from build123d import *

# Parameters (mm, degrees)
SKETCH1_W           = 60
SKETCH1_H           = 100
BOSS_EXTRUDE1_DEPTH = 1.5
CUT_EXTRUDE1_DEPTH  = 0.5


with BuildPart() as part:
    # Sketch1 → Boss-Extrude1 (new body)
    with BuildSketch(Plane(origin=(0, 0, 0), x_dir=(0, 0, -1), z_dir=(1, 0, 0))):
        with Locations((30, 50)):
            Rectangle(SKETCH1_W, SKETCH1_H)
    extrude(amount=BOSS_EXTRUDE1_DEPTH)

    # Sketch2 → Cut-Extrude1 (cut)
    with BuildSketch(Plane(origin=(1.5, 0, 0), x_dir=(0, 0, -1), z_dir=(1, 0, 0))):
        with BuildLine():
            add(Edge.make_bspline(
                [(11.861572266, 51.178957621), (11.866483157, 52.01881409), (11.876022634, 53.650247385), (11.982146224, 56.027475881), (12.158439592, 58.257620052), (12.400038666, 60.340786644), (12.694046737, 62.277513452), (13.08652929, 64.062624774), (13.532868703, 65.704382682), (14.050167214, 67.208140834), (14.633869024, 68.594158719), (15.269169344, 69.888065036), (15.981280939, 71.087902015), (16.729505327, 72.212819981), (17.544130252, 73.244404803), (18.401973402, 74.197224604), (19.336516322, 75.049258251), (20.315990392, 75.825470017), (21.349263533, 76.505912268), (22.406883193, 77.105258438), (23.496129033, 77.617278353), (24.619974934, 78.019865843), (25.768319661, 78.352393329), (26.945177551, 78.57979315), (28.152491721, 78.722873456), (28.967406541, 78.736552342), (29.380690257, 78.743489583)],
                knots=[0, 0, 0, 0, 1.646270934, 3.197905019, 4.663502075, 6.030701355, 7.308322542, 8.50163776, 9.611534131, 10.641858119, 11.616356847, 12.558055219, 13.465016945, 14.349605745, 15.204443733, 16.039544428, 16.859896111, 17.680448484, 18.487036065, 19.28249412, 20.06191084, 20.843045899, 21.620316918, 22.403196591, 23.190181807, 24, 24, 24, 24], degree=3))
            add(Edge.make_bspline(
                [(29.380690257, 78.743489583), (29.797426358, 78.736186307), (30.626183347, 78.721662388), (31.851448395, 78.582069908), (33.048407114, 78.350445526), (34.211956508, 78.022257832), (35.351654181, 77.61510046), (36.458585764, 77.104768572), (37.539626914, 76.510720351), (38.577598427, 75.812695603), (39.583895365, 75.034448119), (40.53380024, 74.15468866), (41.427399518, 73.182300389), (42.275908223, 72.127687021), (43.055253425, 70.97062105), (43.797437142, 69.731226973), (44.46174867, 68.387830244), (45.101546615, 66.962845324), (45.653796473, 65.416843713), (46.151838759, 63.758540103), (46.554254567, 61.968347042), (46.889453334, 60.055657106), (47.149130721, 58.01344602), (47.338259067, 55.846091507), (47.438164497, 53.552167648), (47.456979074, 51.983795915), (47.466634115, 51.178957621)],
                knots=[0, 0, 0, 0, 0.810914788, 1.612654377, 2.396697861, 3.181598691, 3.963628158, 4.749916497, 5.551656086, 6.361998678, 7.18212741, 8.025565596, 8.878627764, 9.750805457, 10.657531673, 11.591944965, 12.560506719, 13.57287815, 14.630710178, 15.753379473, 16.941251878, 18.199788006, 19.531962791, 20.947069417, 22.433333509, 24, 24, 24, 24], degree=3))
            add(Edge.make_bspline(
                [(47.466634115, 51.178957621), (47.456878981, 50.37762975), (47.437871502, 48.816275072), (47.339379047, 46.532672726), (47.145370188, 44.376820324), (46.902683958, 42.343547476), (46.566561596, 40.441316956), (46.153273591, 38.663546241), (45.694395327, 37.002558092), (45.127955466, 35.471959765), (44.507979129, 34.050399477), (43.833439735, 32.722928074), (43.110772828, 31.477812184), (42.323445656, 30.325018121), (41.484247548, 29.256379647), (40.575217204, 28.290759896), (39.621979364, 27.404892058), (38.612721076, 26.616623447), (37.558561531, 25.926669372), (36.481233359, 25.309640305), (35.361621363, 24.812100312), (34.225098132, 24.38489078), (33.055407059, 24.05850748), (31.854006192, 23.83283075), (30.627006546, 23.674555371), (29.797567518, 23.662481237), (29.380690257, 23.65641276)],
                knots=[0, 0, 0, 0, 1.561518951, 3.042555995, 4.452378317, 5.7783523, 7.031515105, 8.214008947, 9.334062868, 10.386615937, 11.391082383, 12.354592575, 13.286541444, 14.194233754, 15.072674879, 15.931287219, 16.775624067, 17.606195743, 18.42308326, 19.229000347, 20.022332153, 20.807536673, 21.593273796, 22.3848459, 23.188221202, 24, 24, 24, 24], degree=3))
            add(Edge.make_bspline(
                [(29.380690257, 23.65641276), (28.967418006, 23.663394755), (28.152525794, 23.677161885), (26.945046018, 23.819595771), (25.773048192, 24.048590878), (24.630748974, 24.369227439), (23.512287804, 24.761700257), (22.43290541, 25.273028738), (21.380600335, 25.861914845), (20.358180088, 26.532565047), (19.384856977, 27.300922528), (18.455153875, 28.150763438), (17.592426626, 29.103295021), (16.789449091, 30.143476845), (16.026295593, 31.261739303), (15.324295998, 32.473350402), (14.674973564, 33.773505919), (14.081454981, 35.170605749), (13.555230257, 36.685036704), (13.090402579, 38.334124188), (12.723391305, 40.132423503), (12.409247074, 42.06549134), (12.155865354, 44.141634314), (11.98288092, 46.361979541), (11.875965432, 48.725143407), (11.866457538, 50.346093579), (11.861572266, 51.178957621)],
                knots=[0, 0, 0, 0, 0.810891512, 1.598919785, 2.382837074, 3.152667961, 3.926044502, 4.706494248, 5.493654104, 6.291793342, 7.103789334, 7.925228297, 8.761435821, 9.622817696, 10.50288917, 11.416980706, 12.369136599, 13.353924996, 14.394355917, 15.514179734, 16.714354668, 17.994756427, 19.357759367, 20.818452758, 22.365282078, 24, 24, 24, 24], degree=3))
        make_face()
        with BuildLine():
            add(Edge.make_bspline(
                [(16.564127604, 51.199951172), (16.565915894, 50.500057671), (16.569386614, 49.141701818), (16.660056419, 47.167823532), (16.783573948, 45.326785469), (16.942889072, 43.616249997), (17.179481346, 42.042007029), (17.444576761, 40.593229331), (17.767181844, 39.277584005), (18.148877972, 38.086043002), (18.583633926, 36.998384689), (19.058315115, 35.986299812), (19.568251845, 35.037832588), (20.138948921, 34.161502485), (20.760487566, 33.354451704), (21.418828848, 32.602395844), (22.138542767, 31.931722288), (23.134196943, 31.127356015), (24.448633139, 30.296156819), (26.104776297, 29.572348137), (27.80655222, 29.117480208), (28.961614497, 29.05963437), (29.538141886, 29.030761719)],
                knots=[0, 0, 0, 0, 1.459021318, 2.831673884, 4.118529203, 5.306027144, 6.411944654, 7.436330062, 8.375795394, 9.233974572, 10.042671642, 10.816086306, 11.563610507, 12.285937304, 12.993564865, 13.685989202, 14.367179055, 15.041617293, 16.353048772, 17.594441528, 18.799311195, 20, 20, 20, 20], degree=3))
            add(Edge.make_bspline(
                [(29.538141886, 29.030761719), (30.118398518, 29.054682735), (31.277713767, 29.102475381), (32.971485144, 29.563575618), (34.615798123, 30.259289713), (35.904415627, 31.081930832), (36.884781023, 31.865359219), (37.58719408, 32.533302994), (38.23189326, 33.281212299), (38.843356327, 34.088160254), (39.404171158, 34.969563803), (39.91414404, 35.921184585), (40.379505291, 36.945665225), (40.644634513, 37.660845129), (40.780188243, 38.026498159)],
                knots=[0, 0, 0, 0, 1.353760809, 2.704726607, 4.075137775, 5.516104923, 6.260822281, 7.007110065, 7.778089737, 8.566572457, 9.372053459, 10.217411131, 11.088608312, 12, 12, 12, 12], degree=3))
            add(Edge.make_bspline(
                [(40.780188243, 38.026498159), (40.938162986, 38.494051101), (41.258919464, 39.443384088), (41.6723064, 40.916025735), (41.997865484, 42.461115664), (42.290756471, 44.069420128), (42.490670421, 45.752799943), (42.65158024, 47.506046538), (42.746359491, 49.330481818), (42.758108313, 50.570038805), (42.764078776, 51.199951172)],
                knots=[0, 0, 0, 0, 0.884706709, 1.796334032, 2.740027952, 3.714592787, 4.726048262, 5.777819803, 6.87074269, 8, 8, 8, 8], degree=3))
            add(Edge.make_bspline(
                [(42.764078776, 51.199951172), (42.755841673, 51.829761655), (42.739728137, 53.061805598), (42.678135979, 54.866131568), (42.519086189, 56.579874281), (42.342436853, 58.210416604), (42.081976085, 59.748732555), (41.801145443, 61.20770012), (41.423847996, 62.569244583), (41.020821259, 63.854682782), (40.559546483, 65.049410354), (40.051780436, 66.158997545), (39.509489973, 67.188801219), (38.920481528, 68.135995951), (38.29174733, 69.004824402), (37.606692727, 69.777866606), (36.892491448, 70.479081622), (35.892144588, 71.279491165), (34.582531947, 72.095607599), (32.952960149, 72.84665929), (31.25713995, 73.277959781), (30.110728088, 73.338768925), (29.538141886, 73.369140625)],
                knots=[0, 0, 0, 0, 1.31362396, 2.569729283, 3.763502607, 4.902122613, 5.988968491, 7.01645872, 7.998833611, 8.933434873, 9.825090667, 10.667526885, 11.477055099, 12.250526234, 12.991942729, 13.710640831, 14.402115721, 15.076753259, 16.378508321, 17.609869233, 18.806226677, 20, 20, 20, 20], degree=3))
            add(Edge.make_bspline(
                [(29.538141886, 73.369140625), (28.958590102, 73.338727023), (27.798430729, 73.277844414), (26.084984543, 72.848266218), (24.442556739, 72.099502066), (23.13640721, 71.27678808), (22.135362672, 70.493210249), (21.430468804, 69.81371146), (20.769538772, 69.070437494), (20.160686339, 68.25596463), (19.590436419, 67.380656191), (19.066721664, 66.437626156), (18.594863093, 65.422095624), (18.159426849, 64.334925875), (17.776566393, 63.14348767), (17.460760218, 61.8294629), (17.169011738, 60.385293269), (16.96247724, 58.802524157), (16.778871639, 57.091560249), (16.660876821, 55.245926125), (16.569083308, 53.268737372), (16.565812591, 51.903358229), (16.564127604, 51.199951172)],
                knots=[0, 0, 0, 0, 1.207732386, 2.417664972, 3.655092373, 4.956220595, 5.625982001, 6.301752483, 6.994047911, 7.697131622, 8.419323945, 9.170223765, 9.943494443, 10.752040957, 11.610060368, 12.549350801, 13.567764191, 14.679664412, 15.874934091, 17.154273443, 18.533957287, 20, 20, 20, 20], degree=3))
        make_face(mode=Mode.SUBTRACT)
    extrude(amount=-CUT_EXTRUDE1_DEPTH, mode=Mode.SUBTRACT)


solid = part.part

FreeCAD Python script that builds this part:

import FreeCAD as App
import Part
import Sketcher
from FreeCAD import Vector
Q = App.Units.Quantity


def add_polygon(sketch, points):
    """Adds a closed chain of lines whose ends are joined by coincident constraints."""
    first, n = sketch.GeometryCount, len(points)
    for a, b in zip(points, points[1:] + points[:1]):
        sketch.addGeometry(Part.LineSegment(App.Vector(*a, 0), App.Vector(*b, 0)), False)
    for i in range(n):
        sketch.addConstraint(Sketcher.Constraint("Coincident", first + i, 2, first + (i + 1) % n, 1))

doc = App.newDocument("Part")
body = doc.addObject("PartDesign::Body", "Body")

sketch1 = body.newObject("Sketcher::SketchObject", "Sketch")
sketch1.AttachmentSupport = (doc.getObject("YZ_Plane"), [""])
sketch1.MapMode = "FlatFace"
add_polygon(sketch1, [(100, 0), (0, 0), (0, -60), (100, -60)])
sketch1.addConstraint([
    Sketcher.Constraint("Horizontal", 0),
    Sketcher.Constraint("Vertical", 1),
    Sketcher.Constraint("Horizontal", 2),
    Sketcher.Constraint("Vertical", 3),
    Sketcher.Constraint("Coincident", 0, 2, -1, 1),
    Sketcher.Constraint("DistanceX", 0, 2, 0, 1, Q("100 mm")),
    Sketcher.Constraint("DistanceY", 1, 2, 1, 1, Q("60 mm")),
])
pad1 = body.newObject("PartDesign::Pad", "Pad")
pad1.Profile = sketch1
pad1.Length = 1.5

sketch2 = body.newObject("Sketcher::SketchObject", "Sketch001")
sketch2.AttachmentSupport = (doc.getObject("YZ_Plane"), [""])
sketch2.MapMode = "FlatFace"
sketch2.AttachmentOffset = App.Placement(Vector(0, 0, 1.5), App.Rotation())
sketch2.addGeometry([
    Part.BSplineCurve([Vector(51.178958, -11.861572, 0), Vector(52.018814, -11.866483, 0), Vector(53.650247, -11.876023, 0), Vector(56.027476, -11.982146, 0), Vector(58.25762, -12.15844, 0), Vector(60.340787, -12.400039, 0), Vector(62.277513, -12.694047, 0), Vector(64.062625, -13.086529, 0), Vector(65.704383, -13.532869, 0), Vector(67.208141, -14.050167, 0), Vector(68.594159, -14.633869, 0), Vector(69.888065, -15.269169, 0), Vector(71.087902, -15.981281, 0), Vector(72.21282, -16.729505, 0), Vector(73.244405, -17.54413, 0), Vector(74.197225, -18.401973, 0), Vector(75.049258, -19.336516, 0), Vector(75.82547, -20.31599, 0), Vector(76.505912, -21.349264, 0), Vector(77.105258, -22.406883, 0), Vector(77.617278, -23.496129, 0), Vector(78.019866, -24.619975, 0), Vector(78.352393, -25.76832, 0), Vector(78.579793, -26.945178, 0), Vector(78.722873, -28.152492, 0), Vector(78.736552, -28.967407, 0), Vector(78.74349, -29.38069, 0)], [4, 1, 1, 1, 1, 1, 1, 1, 1, 1, 1, 1, 1, 1, 1, 1, 1, 1, 1, 1, 1, 1, 1, 1, 4], [0, 1.646270934, 3.197905019, 4.663502075, 6.030701355, 7.308322542, 8.50163776, 9.611534131, 10.641858119, 11.616356847, 12.558055219, 13.465016945, 14.349605745, 15.204443733, 16.039544428, 16.859896111, 17.680448484, 18.487036065, 19.28249412, 20.06191084, 20.843045899, 21.620316918, 22.403196591, 23.190181807, 24], False, 3, [1, 1, 1, 1, 1, 1, 1, 1, 1, 1, 1, 1, 1, 1, 1, 1, 1, 1, 1, 1, 1, 1, 1, 1, 1, 1, 1], False),
    Part.BSplineCurve([Vector(23.656413, -29.38069, 0), Vector(23.663395, -28.967418, 0), Vector(23.677162, -28.152526, 0), Vector(23.819596, -26.945046, 0), Vector(24.048591, -25.773048, 0), Vector(24.369227, -24.630749, 0), Vector(24.7617, -23.512288, 0), Vector(25.273029, -22.432905, 0), Vector(25.861915, -21.3806, 0), Vector(26.532565, -20.35818, 0), Vector(27.300923, -19.384857, 0), Vector(28.150763, -18.455154, 0), Vector(29.103295, -17.592427, 0), Vector(30.143477, -16.789449, 0), Vector(31.261739, -16.026296, 0), Vector(32.47335, -15.324296, 0), Vector(33.773506, -14.674974, 0), Vector(35.170606, -14.081455, 0), Vector(36.685037, -13.55523, 0), Vector(38.334124, -13.090403, 0), Vector(40.132424, -12.723391, 0), Vector(42.065491, -12.409247, 0), Vector(44.141634, -12.155865, 0), Vector(46.36198, -11.982881, 0), Vector(48.725143, -11.875965, 0), Vector(50.346094, -11.866458, 0), Vector(51.178958, -11.861572, 0)], [4, 1, 1, 1, 1, 1, 1, 1, 1, 1, 1, 1, 1, 1, 1, 1, 1, 1, 1, 1, 1, 1, 1, 1, 4], [0, 0.810891512, 1.598919785, 2.382837074, 3.152667961, 3.926044502, 4.706494248, 5.493654104, 6.291793342, 7.103789334, 7.925228297, 8.761435821, 9.622817696, 10.50288917, 11.416980706, 12.369136599, 13.353924996, 14.394355917, 15.514179734, 16.714354668, 17.994756427, 19.357759367, 20.818452758, 22.365282078, 24], False, 3, [1, 1, 1, 1, 1, 1, 1, 1, 1, 1, 1, 1, 1, 1, 1, 1, 1, 1, 1, 1, 1, 1, 1, 1, 1, 1, 1], False),
    Part.BSplineCurve([Vector(51.178958, -47.466634, 0), Vector(50.37763, -47.456879, 0), Vector(48.816275, -47.437872, 0), Vector(46.532673, -47.339379, 0), Vector(44.37682, -47.14537, 0), Vector(42.343547, -46.902684, 0), Vector(40.441317, -46.566562, 0), Vector(38.663546, -46.153274, 0), Vector(37.002558, -45.694395, 0), Vector(35.47196, -45.127955, 0), Vector(34.050399, -44.507979, 0), Vector(32.722928, -43.83344, 0), Vector(31.477812, -43.110773, 0), Vector(30.325018, -42.323446, 0), Vector(29.25638, -41.484248, 0), Vector(28.29076, -40.575217, 0), Vector(27.404892, -39.621979, 0), Vector(26.616623, -38.612721, 0), Vector(25.926669, -37.558562, 0), Vector(25.30964, -36.481233, 0), Vector(24.8121, -35.361621, 0), Vector(24.384891, -34.225098, 0), Vector(24.058507, -33.055407, 0), Vector(23.832831, -31.854006, 0), Vector(23.674555, -30.627007, 0), Vector(23.662481, -29.797568, 0), Vector(23.656413, -29.38069, 0)], [4, 1, 1, 1, 1, 1, 1, 1, 1, 1, 1, 1, 1, 1, 1, 1, 1, 1, 1, 1, 1, 1, 1, 1, 4], [0, 1.561518951, 3.042555995, 4.452378317, 5.7783523, 7.031515105, 8.214008947, 9.334062868, 10.386615937, 11.391082383, 12.354592575, 13.286541444, 14.194233754, 15.072674879, 15.931287219, 16.775624067, 17.606195743, 18.42308326, 19.229000347, 20.022332153, 20.807536673, 21.593273796, 22.3848459, 23.188221202, 24], False, 3, [1, 1, 1, 1, 1, 1, 1, 1, 1, 1, 1, 1, 1, 1, 1, 1, 1, 1, 1, 1, 1, 1, 1, 1, 1, 1, 1], False),
    Part.BSplineCurve([Vector(78.74349, -29.38069, 0), Vector(78.736186, -29.797426, 0), Vector(78.721662, -30.626183, 0), Vector(78.58207, -31.851448, 0), Vector(78.350446, -33.048407, 0), Vector(78.022258, -34.211957, 0), Vector(77.6151, -35.351654, 0), Vector(77.104769, -36.458586, 0), Vector(76.51072, -37.539627, 0), Vector(75.812696, -38.577598, 0), Vector(75.034448, -39.583895, 0), Vector(74.154689, -40.5338, 0), Vector(73.1823, -41.4274, 0), Vector(72.127687, -42.275908, 0), Vector(70.970621, -43.055253, 0), Vector(69.731227, -43.797437, 0), Vector(68.38783, -44.461749, 0), Vector(66.962845, -45.101547, 0), Vector(65.416844, -45.653796, 0), Vector(63.75854, -46.151839, 0), Vector(61.968347, -46.554255, 0), Vector(60.055657, -46.889453, 0), Vector(58.013446, -47.149131, 0), Vector(55.846092, -47.338259, 0), Vector(53.552168, -47.438164, 0), Vector(51.983796, -47.456979, 0), Vector(51.178958, -47.466634, 0)], [4, 1, 1, 1, 1, 1, 1, 1, 1, 1, 1, 1, 1, 1, 1, 1, 1, 1, 1, 1, 1, 1, 1, 1, 4], [0, 0.810914788, 1.612654377, 2.396697861, 3.181598691, 3.963628158, 4.749916497, 5.551656086, 6.361998678, 7.18212741, 8.025565596, 8.878627764, 9.750805457, 10.657531673, 11.591944965, 12.560506719, 13.57287815, 14.630710178, 15.753379473, 16.941251878, 18.199788006, 19.531962791, 20.947069417, 22.433333509, 24], False, 3, [1, 1, 1, 1, 1, 1, 1, 1, 1, 1, 1, 1, 1, 1, 1, 1, 1, 1, 1, 1, 1, 1, 1, 1, 1, 1, 1], False),
    Part.BSplineCurve([Vector(73.369141, -29.538142, 0), Vector(73.338727, -28.95859, 0), Vector(73.277844, -27.798431, 0), Vector(72.848266, -26.084985, 0), Vector(72.099502, -24.442557, 0), Vector(71.276788, -23.136407, 0), Vector(70.49321, -22.135363, 0), Vector(69.813711, -21.430469, 0), Vector(69.070437, -20.769539, 0), Vector(68.255965, -20.160686, 0), Vector(67.380656, -19.590436, 0), Vector(66.437626, -19.066722, 0), Vector(65.422096, -18.594863, 0), Vector(64.334926, -18.159427, 0), Vector(63.143488, -17.776566, 0), Vector(61.829463, -17.46076, 0), Vector(60.385293, -17.169012, 0), Vector(58.802524, -16.962477, 0), Vector(57.09156, -16.778872, 0), Vector(55.245926, -16.660877, 0), Vector(53.268737, -16.569083, 0), Vector(51.903358, -16.565813, 0), Vector(51.199951, -16.564128, 0)], [4, 1, 1, 1, 1, 1, 1, 1, 1, 1, 1, 1, 1, 1, 1, 1, 1, 1, 1, 1, 4], [0, 1.207732386, 2.417664972, 3.655092373, 4.956220595, 5.625982001, 6.301752483, 6.994047911, 7.697131622, 8.419323945, 9.170223765, 9.943494443, 10.752040957, 11.610060368, 12.549350801, 13.567764191, 14.679664412, 15.874934091, 17.154273443, 18.533957287, 20], False, 3, [1, 1, 1, 1, 1, 1, 1, 1, 1, 1, 1, 1, 1, 1, 1, 1, 1, 1, 1, 1, 1, 1, 1], False),
    Part.BSplineCurve([Vector(51.199951, -42.764079, 0), Vector(51.829762, -42.755842, 0), Vector(53.061806, -42.739728, 0), Vector(54.866132, -42.678136, 0), Vector(56.579874, -42.519086, 0), Vector(58.210417, -42.342437, 0), Vector(59.748733, -42.081976, 0), Vector(61.2077, -41.801145, 0), Vector(62.569245, -41.423848, 0), Vector(63.854683, -41.020821, 0), Vector(65.04941, -40.559546, 0), Vector(66.158998, -40.05178, 0), Vector(67.188801, -39.50949, 0), Vector(68.135996, -38.920482, 0), Vector(69.004824, -38.291747, 0), Vector(69.777867, -37.606693, 0), Vector(70.479082, -36.892491, 0), Vector(71.279491, -35.892145, 0), Vector(72.095608, -34.582532, 0), Vector(72.846659, -32.95296, 0), Vector(73.27796, -31.25714, 0), Vector(73.338769, -30.110728, 0), Vector(73.369141, -29.538142, 0)], [4, 1, 1, 1, 1, 1, 1, 1, 1, 1, 1, 1, 1, 1, 1, 1, 1, 1, 1, 1, 4], [0, 1.31362396, 2.569729283, 3.763502607, 4.902122613, 5.988968491, 7.01645872, 7.998833611, 8.933434873, 9.825090667, 10.667526885, 11.477055099, 12.250526234, 12.991942729, 13.710640831, 14.402115721, 15.076753259, 16.378508321, 17.609869233, 18.806226677, 20], False, 3, [1, 1, 1, 1, 1, 1, 1, 1, 1, 1, 1, 1, 1, 1, 1, 1, 1, 1, 1, 1, 1, 1, 1], False),
    Part.BSplineCurve([Vector(38.026498, -40.780188, 0), Vector(38.494051, -40.938163, 0), Vector(39.443384, -41.258919, 0), Vector(40.916026, -41.672306, 0), Vector(42.461116, -41.997865, 0), Vector(44.06942, -42.290756, 0), Vector(45.7528, -42.49067, 0), Vector(47.506047, -42.65158, 0), Vector(49.330482, -42.746359, 0), Vector(50.570039, -42.758108, 0), Vector(51.199951, -42.764079, 0)], [4, 1, 1, 1, 1, 1, 1, 1, 4], [0, 0.884706709, 1.796334032, 2.740027952, 3.714592787, 4.726048262, 5.777819803, 6.87074269, 8], False, 3, [1, 1, 1, 1, 1, 1, 1, 1, 1, 1, 1], False),
    Part.BSplineCurve([Vector(29.030762, -29.538142, 0), Vector(29.054683, -30.118399, 0), Vector(29.102475, -31.277714, 0), Vector(29.563576, -32.971485, 0), Vector(30.25929, -34.615798, 0), Vector(31.081931, -35.904416, 0), Vector(31.865359, -36.884781, 0), Vector(32.533303, -37.587194, 0), Vector(33.281212, -38.231893, 0), Vector(34.08816, -38.843356, 0), Vector(34.969564, -39.404171, 0), Vector(35.921185, -39.914144, 0), Vector(36.945665, -40.379505, 0), Vector(37.660845, -40.644635, 0), Vector(38.026498, -40.780188, 0)], [4, 1, 1, 1, 1, 1, 1, 1, 1, 1, 1, 1, 4], [0, 1.353760809, 2.704726607, 4.075137775, 5.516104923, 6.260822281, 7.007110065, 7.778089737, 8.566572457, 9.372053459, 10.217411131, 11.088608312, 12], False, 3, [1, 1, 1, 1, 1, 1, 1, 1, 1, 1, 1, 1, 1, 1, 1], False),
    Part.BSplineCurve([Vector(51.199951, -16.564128, 0), Vector(50.500058, -16.565916, 0), Vector(49.141702, -16.569387, 0), Vector(47.167824, -16.660056, 0), Vector(45.326785, -16.783574, 0), Vector(43.61625, -16.942889, 0), Vector(42.042007, -17.179481, 0), Vector(40.593229, -17.444577, 0), Vector(39.277584, -17.767182, 0), Vector(38.086043, -18.148878, 0), Vector(36.998385, -18.583634, 0), Vector(35.9863, -19.058315, 0), Vector(35.037833, -19.568252, 0), Vector(34.161502, -20.138949, 0), Vector(33.354452, -20.760488, 0), Vector(32.602396, -21.418829, 0), Vector(31.931722, -22.138543, 0), Vector(31.127356, -23.134197, 0), Vector(30.296157, -24.448633, 0), Vector(29.572348, -26.104776, 0), Vector(29.11748, -27.806552, 0), Vector(29.059634, -28.961614, 0), Vector(29.030762, -29.538142, 0)], [4, 1, 1, 1, 1, 1, 1, 1, 1, 1, 1, 1, 1, 1, 1, 1, 1, 1, 1, 1, 4], [0, 1.459021318, 2.831673884, 4.118529203, 5.306027144, 6.411944654, 7.436330062, 8.375795394, 9.233974572, 10.042671642, 10.816086306, 11.563610507, 12.285937304, 12.993564865, 13.685989202, 14.367179055, 15.041617293, 16.353048772, 17.594441528, 18.799311195, 20], False, 3, [1, 1, 1, 1, 1, 1, 1, 1, 1, 1, 1, 1, 1, 1, 1, 1, 1, 1, 1, 1, 1, 1, 1], False),
], False)
sketch2.addConstraint([
    Sketcher.Constraint("Block", 0),
    Sketcher.Constraint("Block", 1),
    Sketcher.Constraint("Block", 2),
    Sketcher.Constraint("Block", 3),
    Sketcher.Constraint("Block", 4),
    Sketcher.Constraint("Block", 5),
    Sketcher.Constraint("Block", 6),
    Sketcher.Constraint("Block", 7),
    Sketcher.Constraint("Block", 8),
])
pocket1 = body.newObject("PartDesign::Pocket", "Pocket")
pocket1.Profile = sketch2
pocket1.Length = 0.5

doc.recompute()
